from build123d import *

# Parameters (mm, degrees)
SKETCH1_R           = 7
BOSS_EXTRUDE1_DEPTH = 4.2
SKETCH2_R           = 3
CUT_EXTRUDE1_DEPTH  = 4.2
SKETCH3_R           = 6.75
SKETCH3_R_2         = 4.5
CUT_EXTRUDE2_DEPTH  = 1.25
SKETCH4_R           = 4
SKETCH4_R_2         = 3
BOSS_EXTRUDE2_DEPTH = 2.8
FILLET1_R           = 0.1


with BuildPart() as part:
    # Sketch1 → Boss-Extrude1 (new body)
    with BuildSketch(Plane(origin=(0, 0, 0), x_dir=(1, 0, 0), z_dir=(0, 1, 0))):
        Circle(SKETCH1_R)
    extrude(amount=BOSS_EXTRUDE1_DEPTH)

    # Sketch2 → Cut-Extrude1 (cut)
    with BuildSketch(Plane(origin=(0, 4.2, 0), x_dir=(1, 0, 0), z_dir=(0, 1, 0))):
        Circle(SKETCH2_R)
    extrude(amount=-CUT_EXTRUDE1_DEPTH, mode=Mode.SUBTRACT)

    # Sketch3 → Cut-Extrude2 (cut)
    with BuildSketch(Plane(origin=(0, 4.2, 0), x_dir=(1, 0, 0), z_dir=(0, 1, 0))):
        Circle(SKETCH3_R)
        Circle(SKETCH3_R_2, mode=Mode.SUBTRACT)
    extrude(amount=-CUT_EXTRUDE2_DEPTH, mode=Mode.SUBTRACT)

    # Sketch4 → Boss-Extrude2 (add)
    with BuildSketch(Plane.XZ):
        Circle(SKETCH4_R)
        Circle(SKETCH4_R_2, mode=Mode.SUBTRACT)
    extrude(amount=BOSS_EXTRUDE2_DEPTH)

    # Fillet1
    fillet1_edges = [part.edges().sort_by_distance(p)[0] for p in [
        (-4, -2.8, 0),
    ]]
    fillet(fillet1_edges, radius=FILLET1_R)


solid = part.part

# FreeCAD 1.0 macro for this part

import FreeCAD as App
import Part
import Sketcher


def edges_at(feature, points):
    """Names of the edges that pass closest to the given points."""
    edges = feature.Shape.Edges
    near = lambda p: min(range(len(edges)), key=lambda i: edges[i].distToShape(Part.Vertex(*p))[0])
    return sorted({f"Edge{near(p) + 1}" for p in points})

doc = App.newDocument("Part")
params = doc.addObject("Spreadsheet::Sheet", "Params")
for row, (alias, value) in enumerate([
    ("sketch1_diameter", "14 mm"),
    ("pad1_length", "4.2 mm"),
    ("sketch2_diameter", "6 mm"),
    ("pocket1_length", "4.2 mm"),
    ("sketch3_diameter", "9 mm"),
    ("sketch3_diameter2", "13.5 mm"),
    ("pocket2_length", "1.25 mm"),
    ("sketch4_diameter", "8 mm"),
    ("sketch4_diameter2", "6 mm"),
    ("pad2_length", "2.8 mm"),
    ("fillet_radius", "0.1 mm"),
], start=1):
    params.set(f"A{row}", alias)
    params.set(f"B{row}", "=" + value)
    params.setAlias(f"B{row}", alias)

body = doc.addObject("PartDesign::Body", "Body")

# Sketch on XZ plane
sketch1 = body.newObject("Sketcher::SketchObject", "Sketch")
sketch1.AttachmentSupport = (doc.getObject("XZ_Plane"), [""])
sketch1.MapMode = "FlatFace"
sketch1.addGeometry(Part.Circle(App.Vector(0, 0, 0), App.Vector(0, 0, 1), 7), False)
sketch1.addConstraint(Sketcher.Constraint("Coincident", 0, 3, -1, 1))
sketch1.addConstraint(Sketcher.Constraint("Diameter", 0, 14.0))
sketch1.setExpression("Constraints[1]", "Params.sketch1_diameter")
pad1 = body.newObject("PartDesign::Pad", "Pad")
pad1.Profile = sketch1
pad1.setExpression("Length", "Params.pad1_length")
pad1.Reversed = True

# Sketch on XZ plane
sketch2 = body.newObject("Sketcher::SketchObject", "Sketch001")
sketch2.AttachmentSupport = (doc.getObject("XZ_Plane"), [""])
sketch2.MapMode = "FlatFace"
sketch2.AttachmentOffset = App.Placement(App.Vector(0, 0, -4.2), App.Rotation())
sketch2.addGeometry(Part.Circle(App.Vector(0, 0, 0), App.Vector(0, 0, 1), 3), False)
sketch2.addConstraint(Sketcher.Constraint("Coincident", 0, 3, -1, 1))
sketch2.addConstraint(Sketcher.Constraint("Diameter", 0, 6.0))
sketch2.setExpression("Constraints[1]", "Params.sketch2_diameter")
pocket1 = body.newObject("PartDesign::Pocket", "Pocket")
pocket1.Profile = sketch2
pocket1.setExpression("Length", "Params.pocket1_length")
pocket1.Reversed = True

# Sketch on XZ plane
sketch3 = body.newObject("Sketcher::SketchObject", "Sketch002")
sketch3.AttachmentSupport = (doc.getObject("XZ_Plane"), [""])
sketch3.MapMode = "FlatFace"
sketch3.AttachmentOffset = App.Placement(App.Vector(0, 0, -4.2), App.Rotation())
sketch3.addGeometry(Part.Circle(App.Vector(0, 0, 0), App.Vector(0, 0, 1), 6.8), False)
sketch3.addGeometry(Part.Circle(App.Vector(0, 0, 0), App.Vector(0, 0, 1), 4.5), False)
sketch3.addConstraint(Sketcher.Constraint("Coincident", 0, 3, -1, 1))
sketch3.addConstraint(Sketcher.Constraint("Coincident", 1, 3, -1, 1))
sketch3.addConstraint(Sketcher.Constraint("Diameter", 1, 9.0))
sketch3.addConstraint(Sketcher.Constraint("Diameter", 0, 13.5))
sketch3.setExpression("Constraints[2]", "Params.sketch3_diameter")
sketch3.setExpression("Constraints[3]", "Params.sketch3_diameter2")
pocket2 = body.newObject("PartDesign::Pocket", "Pocket001")
pocket2.Profile = sketch3
pocket2.setExpression("Length", "Params.pocket2_length")
pocket2.Reversed = True

# Sketch on XZ plane
sketch4 = body.newObject("Sketcher::SketchObject", "Sketch003")
sketch4.AttachmentSupport = (doc.getObject("XZ_Plane"), [""])
sketch4.MapMode = "FlatFace"
sketch4.addGeometry(Part.Circle(App.Vector(0, 0, 0), App.Vector(0, 0, 1), 4), False)
sketch4.addGeometry(Part.Circle(App.Vector(0, 0, 0), App.Vector(0, 0, 1), 3), False)
sketch4.addConstraint(Sketcher.Constraint("Coincident", 0, 3, -1, 1))
sketch4.addConstraint(Sketcher.Constraint("Coincident", 1, 3, -1, 1))
sketch4.addConstraint(Sketcher.Constraint("Diameter", 0, 8.0))
sketch4.addConstraint(Sketcher.Constraint("Diameter", 1, 6.0))
sketch4.setExpression("Constraints[2]", "Params.sketch4_diameter")
sketch4.setExpression("Constraints[3]", "Params.sketch4_diameter2")
pad2 = body.newObject("PartDesign::Pad", "Pad001")
pad2.Profile = sketch4
pad2.setExpression("Length", "Params.pad2_length")
doc.recompute()

fillet = body.newObject("PartDesign::Fillet", "Fillet")
fillet.Base = (pad2, edges_at(pad2, [(-4, -2.8, 0)]))
fillet.setExpression("Radius", "Params.fillet_radius")

doc.recompute()
